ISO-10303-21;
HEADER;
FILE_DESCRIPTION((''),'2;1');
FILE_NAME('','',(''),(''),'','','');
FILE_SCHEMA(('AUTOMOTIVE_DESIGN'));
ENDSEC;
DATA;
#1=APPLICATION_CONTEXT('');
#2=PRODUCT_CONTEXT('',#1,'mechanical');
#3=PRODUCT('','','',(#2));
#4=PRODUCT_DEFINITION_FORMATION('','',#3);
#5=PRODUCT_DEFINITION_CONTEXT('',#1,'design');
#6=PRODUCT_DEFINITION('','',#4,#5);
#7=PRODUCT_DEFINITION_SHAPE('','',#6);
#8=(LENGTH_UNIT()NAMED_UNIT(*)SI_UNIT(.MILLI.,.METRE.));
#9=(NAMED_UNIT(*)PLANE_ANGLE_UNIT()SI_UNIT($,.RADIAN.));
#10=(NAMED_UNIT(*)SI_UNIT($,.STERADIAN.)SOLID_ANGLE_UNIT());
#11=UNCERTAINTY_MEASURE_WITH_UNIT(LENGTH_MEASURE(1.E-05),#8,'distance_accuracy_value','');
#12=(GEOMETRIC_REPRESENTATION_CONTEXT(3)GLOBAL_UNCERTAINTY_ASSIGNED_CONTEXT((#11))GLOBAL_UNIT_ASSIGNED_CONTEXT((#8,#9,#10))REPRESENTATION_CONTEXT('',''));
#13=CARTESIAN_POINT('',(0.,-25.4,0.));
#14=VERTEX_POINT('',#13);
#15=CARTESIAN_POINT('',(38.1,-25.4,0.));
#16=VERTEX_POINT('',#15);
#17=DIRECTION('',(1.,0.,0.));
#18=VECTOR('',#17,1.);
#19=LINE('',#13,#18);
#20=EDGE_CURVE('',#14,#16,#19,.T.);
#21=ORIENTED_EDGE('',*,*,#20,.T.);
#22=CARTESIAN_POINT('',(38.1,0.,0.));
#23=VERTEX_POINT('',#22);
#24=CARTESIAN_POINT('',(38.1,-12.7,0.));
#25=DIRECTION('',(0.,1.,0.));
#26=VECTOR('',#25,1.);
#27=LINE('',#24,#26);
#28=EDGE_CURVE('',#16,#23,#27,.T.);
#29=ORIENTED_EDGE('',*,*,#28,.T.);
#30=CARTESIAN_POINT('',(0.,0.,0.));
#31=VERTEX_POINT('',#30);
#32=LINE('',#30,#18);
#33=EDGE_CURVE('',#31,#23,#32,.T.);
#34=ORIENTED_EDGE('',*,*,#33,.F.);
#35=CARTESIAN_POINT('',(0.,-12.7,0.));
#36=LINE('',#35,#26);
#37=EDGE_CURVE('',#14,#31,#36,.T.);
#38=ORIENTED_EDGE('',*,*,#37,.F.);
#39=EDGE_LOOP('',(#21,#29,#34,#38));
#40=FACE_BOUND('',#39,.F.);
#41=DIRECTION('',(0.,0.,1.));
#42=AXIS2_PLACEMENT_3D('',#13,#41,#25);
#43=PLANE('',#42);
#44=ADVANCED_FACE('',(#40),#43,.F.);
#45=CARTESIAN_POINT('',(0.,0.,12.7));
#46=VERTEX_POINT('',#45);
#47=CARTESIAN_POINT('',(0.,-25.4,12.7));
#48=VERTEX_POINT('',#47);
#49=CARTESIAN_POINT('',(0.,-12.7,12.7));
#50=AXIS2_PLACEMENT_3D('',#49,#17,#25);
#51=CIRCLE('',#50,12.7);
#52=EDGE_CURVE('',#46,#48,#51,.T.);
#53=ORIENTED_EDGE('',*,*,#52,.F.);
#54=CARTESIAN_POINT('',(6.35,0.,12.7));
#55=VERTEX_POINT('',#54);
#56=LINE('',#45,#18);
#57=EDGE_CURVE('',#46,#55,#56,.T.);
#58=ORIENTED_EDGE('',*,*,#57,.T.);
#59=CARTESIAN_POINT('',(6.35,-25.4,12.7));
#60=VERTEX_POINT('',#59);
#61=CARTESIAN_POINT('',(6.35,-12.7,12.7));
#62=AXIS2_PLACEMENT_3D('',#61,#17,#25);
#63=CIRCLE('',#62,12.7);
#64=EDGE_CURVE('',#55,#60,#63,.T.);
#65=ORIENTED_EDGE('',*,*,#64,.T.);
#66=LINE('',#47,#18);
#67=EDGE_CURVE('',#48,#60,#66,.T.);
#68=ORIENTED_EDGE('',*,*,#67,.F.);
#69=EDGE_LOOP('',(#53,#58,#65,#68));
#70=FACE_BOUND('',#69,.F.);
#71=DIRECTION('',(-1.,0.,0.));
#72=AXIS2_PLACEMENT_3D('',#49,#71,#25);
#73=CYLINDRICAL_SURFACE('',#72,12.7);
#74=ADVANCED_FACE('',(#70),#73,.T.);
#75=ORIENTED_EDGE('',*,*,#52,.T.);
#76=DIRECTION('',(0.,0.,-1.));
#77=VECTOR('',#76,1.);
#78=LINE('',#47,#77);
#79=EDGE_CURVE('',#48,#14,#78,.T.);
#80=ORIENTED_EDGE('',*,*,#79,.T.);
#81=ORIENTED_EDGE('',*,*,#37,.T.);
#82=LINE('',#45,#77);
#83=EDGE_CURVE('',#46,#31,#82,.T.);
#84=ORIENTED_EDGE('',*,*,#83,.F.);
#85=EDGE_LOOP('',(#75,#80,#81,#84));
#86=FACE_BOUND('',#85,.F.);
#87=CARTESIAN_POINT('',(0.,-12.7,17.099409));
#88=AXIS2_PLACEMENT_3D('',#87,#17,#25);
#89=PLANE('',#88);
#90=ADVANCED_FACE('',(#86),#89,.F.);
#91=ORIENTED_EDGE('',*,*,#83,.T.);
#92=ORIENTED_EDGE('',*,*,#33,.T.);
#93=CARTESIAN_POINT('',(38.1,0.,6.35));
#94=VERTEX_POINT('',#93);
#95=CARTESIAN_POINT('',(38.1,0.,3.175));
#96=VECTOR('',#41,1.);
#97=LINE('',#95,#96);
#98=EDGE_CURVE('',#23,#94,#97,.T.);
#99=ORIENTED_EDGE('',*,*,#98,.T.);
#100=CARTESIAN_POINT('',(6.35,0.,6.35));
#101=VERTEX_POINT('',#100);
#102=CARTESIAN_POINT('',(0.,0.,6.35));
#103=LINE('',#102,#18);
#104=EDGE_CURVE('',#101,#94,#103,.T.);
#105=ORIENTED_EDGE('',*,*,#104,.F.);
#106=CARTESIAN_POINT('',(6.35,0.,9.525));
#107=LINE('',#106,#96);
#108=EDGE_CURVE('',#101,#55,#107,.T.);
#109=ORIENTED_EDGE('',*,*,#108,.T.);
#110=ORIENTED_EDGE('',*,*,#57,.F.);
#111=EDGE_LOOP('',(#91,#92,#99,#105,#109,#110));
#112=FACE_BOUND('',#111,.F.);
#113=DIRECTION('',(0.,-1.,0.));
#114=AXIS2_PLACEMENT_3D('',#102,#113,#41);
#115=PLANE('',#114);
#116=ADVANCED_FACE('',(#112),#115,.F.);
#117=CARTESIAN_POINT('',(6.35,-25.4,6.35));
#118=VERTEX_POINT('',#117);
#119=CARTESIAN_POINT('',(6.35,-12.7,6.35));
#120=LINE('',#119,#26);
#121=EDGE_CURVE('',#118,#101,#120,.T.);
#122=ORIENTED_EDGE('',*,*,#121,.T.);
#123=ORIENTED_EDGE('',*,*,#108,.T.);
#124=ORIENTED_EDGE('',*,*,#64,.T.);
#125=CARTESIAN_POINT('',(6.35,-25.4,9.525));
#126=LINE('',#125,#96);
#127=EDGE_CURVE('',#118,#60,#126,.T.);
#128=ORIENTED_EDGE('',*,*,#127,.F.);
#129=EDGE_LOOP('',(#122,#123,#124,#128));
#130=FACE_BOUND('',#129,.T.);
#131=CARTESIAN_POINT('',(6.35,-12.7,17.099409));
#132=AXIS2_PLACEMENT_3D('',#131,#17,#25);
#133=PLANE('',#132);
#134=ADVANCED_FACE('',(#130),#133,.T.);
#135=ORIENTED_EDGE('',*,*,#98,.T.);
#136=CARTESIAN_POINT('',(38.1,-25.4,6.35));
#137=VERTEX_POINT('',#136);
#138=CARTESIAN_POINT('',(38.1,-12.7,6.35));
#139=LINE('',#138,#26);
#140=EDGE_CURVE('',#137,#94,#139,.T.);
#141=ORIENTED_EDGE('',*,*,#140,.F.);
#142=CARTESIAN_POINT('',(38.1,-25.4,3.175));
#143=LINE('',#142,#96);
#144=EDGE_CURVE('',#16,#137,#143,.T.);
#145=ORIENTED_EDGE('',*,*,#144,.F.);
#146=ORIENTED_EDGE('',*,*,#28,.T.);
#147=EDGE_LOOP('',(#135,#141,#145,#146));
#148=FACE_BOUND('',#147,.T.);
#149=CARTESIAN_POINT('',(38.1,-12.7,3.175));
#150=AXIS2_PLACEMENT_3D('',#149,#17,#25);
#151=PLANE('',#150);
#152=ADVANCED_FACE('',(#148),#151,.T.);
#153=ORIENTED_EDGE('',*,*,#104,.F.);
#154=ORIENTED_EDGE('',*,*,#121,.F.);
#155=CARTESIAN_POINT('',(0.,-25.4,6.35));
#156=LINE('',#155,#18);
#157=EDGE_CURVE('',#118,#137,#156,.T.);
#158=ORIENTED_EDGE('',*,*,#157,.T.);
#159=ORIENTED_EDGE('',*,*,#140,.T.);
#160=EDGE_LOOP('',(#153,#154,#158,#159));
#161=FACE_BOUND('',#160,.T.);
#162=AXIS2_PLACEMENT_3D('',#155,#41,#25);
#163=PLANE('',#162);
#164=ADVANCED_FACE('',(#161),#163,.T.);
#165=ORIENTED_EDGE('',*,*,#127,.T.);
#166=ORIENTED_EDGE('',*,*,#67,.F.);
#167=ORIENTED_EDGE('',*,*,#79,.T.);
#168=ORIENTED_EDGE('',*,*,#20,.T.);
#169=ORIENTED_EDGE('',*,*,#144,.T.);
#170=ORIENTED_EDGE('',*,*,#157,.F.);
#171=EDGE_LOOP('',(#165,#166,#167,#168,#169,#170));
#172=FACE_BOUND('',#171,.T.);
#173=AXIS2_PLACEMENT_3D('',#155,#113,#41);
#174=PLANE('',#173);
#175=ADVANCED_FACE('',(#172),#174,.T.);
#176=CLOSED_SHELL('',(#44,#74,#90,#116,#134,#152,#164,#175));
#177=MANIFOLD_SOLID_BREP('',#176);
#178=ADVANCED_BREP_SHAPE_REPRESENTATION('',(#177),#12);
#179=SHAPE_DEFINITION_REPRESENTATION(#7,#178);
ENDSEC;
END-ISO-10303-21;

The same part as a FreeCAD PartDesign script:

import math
import FreeCAD as App
import Part
import Sketcher

V = App.Vector
Q = App.Units.Quantity

doc = App.newDocument("Part")
body = doc.addObject("PartDesign::Body", "Body")

# Sketch on YZ plane
sketch1 = doc.addObject("Sketcher::SketchObject", "Sketch")
body.addObject(sketch1)
sketch1.AttachmentSupport = (doc.YZ_Plane, [""])
sketch1.MapMode = "FlatFace"
sketch1.addGeometry(Part.LineSegment(V(-25, 6, 0), V(-25, 0, 0)), False)
sketch1.addGeometry(Part.LineSegment(V(-25, 0, 0), V(0, 0, 0)), False)
sketch1.addGeometry(Part.LineSegment(V(0, 0, 0), V(0, 6, 0)), False)
sketch1.addGeometry(Part.LineSegment(V(0, 6, 0), V(-25, 6, 0)), False)
sketch1.addConstraint(Sketcher.Constraint("Coincident", 0, 2, 1, 1))
sketch1.addConstraint(Sketcher.Constraint("Coincident", 1, 2, 2, 1))
sketch1.addConstraint(Sketcher.Constraint("Coincident", 2, 2, 3, 1))
sketch1.addConstraint(Sketcher.Constraint("Coincident", 3, 2, 0, 1))
sketch1.addConstraint(Sketcher.Constraint("Vertical", 0))
sketch1.addConstraint(Sketcher.Constraint("Horizontal", 1))
sketch1.addConstraint(Sketcher.Constraint("Vertical", 2))
sketch1.addConstraint(Sketcher.Constraint("Horizontal", 3))
sketch1.addConstraint(Sketcher.Constraint("Coincident", 1, 2, -1, 1))
sketch1.addConstraint(Sketcher.Constraint("DistanceX", 1, 1, 1, 2, Q("1 in")))
sketch1.addConstraint(Sketcher.Constraint("DistanceY", 0, 2, 0, 1, Q("0.25 in")))
pad1 = doc.addObject("PartDesign::Pad", "Pad")
body.addObject(pad1)
pad1.Profile = sketch1
pad1.Length = Q("1.5 in")

# Sketch on YZ plane
sketch2 = doc.addObject("Sketcher::SketchObject", "Sketch001")
body.addObject(sketch2)
sketch2.AttachmentSupport = (doc.YZ_Plane, [""])
sketch2.MapMode = "FlatFace"
sketch2.addGeometry(Part.LineSegment(V(-25, 13, 0), V(-25, 6, 0)), False)
sketch2.addGeometry(Part.LineSegment(V(-25, 6, 0), V(0, 6, 0)), False)
sketch2.addGeometry(Part.LineSegment(V(0, 6, 0), V(0, 13, 0)), False)
sketch2.addGeometry(Part.LineSegment(V(0, 13, 0), V(-25, 13, 0)), False)
sketch2.addConstraint(Sketcher.Constraint("Coincident", 0, 2, 1, 1))
sketch2.addConstraint(Sketcher.Constraint("Coincident", 1, 2, 2, 1))
sketch2.addConstraint(Sketcher.Constraint("Coincident", 2, 2, 3, 1))
sketch2.addConstraint(Sketcher.Constraint("Coincident", 3, 2, 0, 1))
sketch2.addConstraint(Sketcher.Constraint("Vertical", 0))
sketch2.addConstraint(Sketcher.Constraint("Horizontal", 1))
sketch2.addConstraint(Sketcher.Constraint("Vertical", 2))
sketch2.addConstraint(Sketcher.Constraint("Horizontal", 3))
sketch2.addConstraint(Sketcher.Constraint("PointOnObject", 1, 2, -2))
sketch2.addConstraint(Sketcher.Constraint("DistanceX", 1, 1, 1, 2, Q("1 in")))
sketch2.addConstraint(Sketcher.Constraint("DistanceY", 0, 2, 0, 1, Q("0.25 in")))
sketch2.addConstraint(Sketcher.Constraint("DistanceY", -1, 1, 2, 2, Q("0.5 in")))
pad2 = doc.addObject("PartDesign::Pad", "Pad001")
body.addObject(pad2)
pad2.Profile = sketch2
pad2.Length = Q("0.25 in")

# Sketch on YZ plane
sketch3 = doc.addObject("Sketcher::SketchObject", "Sketch002")
body.addObject(sketch3)
sketch3.AttachmentSupport = (doc.YZ_Plane, [""])
sketch3.MapMode = "FlatFace"
sketch3.addGeometry(Part.LineSegment(V(-25, 13, 0), V(0, 13, 0)), False)
sketch3.addGeometry(Part.ArcOfCircle(Part.Circle(V(-13, 13, 0), V(0, 0, 1), 13), math.radians(0), math.radians(180)), False)
sketch3.addConstraint(Sketcher.Constraint("Coincident", 0, 1, 1, 2))
sketch3.addConstraint(Sketcher.Constraint("Coincident", 1, 1, 0, 2))
sketch3.addConstraint(Sketcher.Constraint("Horizontal", 0))
sketch3.addConstraint(Sketcher.Constraint("PointOnObject", 1, 1, -2))
sketch3.addConstraint(Sketcher.Constraint("Horizontal", 1, 3, 0, 1))
sketch3.addConstraint(Sketcher.Constraint("Radius", 1, Q("0.5 in")))
sketch3.addConstraint(Sketcher.Constraint("DistanceY", -1, 1, 1, 3, Q("0.5 in")))
pad3 = doc.addObject("PartDesign::Pad", "Pad002")
body.addObject(pad3)
pad3.Profile = sketch3
pad3.Length = Q("0.25 in")

doc.recompute()
